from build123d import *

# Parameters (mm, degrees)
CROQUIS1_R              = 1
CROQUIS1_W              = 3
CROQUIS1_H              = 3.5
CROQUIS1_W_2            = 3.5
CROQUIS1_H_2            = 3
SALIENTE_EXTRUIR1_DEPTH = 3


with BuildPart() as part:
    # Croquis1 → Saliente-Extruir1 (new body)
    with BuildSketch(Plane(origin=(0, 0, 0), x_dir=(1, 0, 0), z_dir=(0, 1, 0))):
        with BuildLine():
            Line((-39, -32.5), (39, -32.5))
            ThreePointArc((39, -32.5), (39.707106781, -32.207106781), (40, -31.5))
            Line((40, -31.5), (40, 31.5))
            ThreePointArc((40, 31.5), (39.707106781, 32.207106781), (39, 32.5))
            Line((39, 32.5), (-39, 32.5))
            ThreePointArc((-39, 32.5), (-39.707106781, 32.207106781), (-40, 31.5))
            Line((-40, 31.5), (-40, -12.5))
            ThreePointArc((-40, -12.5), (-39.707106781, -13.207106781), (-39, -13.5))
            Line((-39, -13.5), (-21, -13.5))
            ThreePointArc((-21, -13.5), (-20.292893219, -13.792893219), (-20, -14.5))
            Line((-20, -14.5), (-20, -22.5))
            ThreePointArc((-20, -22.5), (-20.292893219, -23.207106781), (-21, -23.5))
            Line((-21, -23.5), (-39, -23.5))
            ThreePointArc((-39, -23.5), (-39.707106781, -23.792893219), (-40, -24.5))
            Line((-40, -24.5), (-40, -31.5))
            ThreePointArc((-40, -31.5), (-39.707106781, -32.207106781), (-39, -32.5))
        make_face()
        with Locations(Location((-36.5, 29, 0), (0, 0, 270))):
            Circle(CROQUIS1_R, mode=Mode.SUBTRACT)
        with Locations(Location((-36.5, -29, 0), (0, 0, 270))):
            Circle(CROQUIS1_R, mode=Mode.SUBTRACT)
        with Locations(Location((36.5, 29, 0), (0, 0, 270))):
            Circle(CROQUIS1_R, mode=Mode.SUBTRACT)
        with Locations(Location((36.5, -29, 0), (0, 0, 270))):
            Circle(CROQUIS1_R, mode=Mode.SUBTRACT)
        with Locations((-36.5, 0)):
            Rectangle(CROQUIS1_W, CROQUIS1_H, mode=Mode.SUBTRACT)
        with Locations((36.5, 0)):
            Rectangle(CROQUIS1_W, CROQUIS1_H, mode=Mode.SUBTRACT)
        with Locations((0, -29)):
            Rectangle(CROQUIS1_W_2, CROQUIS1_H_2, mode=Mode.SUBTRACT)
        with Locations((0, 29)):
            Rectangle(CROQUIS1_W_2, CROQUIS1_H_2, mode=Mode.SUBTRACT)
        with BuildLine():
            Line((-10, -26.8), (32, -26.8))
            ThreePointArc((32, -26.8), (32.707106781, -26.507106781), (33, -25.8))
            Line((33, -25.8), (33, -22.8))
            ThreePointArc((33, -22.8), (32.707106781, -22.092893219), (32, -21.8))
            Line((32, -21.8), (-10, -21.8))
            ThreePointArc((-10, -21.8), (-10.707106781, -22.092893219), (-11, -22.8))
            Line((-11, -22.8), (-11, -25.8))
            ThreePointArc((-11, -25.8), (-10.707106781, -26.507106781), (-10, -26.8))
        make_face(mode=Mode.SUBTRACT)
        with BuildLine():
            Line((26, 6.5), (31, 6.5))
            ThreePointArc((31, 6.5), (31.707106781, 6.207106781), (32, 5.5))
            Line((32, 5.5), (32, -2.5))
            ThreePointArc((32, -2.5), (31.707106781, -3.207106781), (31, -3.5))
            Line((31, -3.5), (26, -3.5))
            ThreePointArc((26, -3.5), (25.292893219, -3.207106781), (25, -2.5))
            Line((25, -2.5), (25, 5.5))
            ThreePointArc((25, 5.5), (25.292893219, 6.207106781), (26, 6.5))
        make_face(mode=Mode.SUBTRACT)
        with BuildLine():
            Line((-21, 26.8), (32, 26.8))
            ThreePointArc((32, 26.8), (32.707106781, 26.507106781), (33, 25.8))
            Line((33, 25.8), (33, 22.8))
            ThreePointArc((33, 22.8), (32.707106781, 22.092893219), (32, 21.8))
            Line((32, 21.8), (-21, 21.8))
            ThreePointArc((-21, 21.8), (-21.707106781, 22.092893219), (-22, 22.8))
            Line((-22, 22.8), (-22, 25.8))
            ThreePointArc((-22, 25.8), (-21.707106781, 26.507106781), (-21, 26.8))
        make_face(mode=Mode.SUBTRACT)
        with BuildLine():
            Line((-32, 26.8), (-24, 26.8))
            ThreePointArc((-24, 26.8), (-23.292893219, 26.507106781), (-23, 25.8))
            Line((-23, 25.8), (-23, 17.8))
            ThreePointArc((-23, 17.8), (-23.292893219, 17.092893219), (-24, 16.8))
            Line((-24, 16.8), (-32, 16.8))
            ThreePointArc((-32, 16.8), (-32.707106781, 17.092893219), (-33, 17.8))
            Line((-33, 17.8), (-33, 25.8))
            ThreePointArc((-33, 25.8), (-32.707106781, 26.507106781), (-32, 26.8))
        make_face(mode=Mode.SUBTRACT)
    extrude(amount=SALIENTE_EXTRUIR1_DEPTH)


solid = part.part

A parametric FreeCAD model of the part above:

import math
import FreeCAD as App
import Part
import Sketcher
from FreeCAD import Vector
Q = App.Units.Quantity


def add_polygon(sketch, points):
    """Adds a closed chain of lines whose ends are joined by coincident constraints."""
    first, n = sketch.GeometryCount, len(points)
    for a, b in zip(points, points[1:] + points[:1]):
        sketch.addGeometry(Part.LineSegment(App.Vector(*a, 0), App.Vector(*b, 0)), False)
    for i in range(n):
        sketch.addConstraint(Sketcher.Constraint("Coincident", first + i, 2, first + (i + 1) % n, 1))

doc = App.newDocument("Part")
body = doc.addObject("PartDesign::Body", "Body")

# Sketch on XZ plane
sketch1 = doc.addObject("Sketcher::SketchObject", "Sketch")
body.addObject(sketch1)
sketch1.AttachmentSupport = (doc.XZ_Plane, [""])
sketch1.MapMode = "FlatFace"
sketch1.addGeometry(Part.LineSegment(Vector(-39, 32.5, 0), Vector(39, 32.5, 0)), False)  # 0
sketch1.addGeometry(Part.ArcOfCircle(Part.Circle(Vector(39, 31.5, 0), Vector(0, 0, 1), 1), math.radians(0), math.radians(90)), False)  # 1
sketch1.addGeometry(Part.LineSegment(Vector(40, 31.5, 0), Vector(40, -31.5, 0)), False)  # 2
sketch1.addGeometry(Part.ArcOfCircle(Part.Circle(Vector(39, -31.5, 0), Vector(0, 0, 1), 1), math.radians(-90), math.radians(0)), False)  # 3
sketch1.addGeometry(Part.LineSegment(Vector(39, -32.5, 0), Vector(-39, -32.5, 0)), False)  # 4
sketch1.addGeometry(Part.ArcOfCircle(Part.Circle(Vector(-39, -31.5, 0), Vector(0, 0, 1), 1), math.radians(-180), math.radians(-90)), False)  # 5
sketch1.addGeometry(Part.LineSegment(Vector(-40, -31.5, 0), Vector(-40, 12.5, 0)), False)  # 6
sketch1.addGeometry(Part.ArcOfCircle(Part.Circle(Vector(-39, 12.5, 0), Vector(0, 0, 1), 1), math.radians(90), math.radians(180)), False)  # 7
sketch1.addGeometry(Part.LineSegment(Vector(-39, 13.5, 0), Vector(-21, 13.5, 0)), False)  # 8
sketch1.addGeometry(Part.ArcOfCircle(Part.Circle(Vector(-21, 14.5, 0), Vector(0, 0, 1), 1), math.radians(-90), math.radians(0)), False)  # 9
sketch1.addGeometry(Part.LineSegment(Vector(-20, 14.5, 0), Vector(-20, 22.5, 0)), False)  # 10
sketch1.addGeometry(Part.ArcOfCircle(Part.Circle(Vector(-21, 22.5, 0), Vector(0, 0, 1), 1), math.radians(0), math.radians(90)), False)  # 11
sketch1.addGeometry(Part.LineSegment(Vector(-21, 23.5, 0), Vector(-39, 23.5, 0)), False)  # 12
sketch1.addGeometry(Part.ArcOfCircle(Part.Circle(Vector(-39, 24.5, 0), Vector(0, 0, 1), 1), math.radians(-180), math.radians(-90)), False)  # 13
sketch1.addGeometry(Part.LineSegment(Vector(-40, 24.5, 0), Vector(-40, 31.5, 0)), False)  # 14
sketch1.addGeometry(Part.ArcOfCircle(Part.Circle(Vector(-39, 31.5, 0), Vector(0, 0, 1), 1), math.radians(90), math.radians(180)), False)  # 15
sketch1.addGeometry(Part.Circle(Vector(-36.5, 29, 0), Vector(0, 0, 1), 1), False)  # 16
add_polygon(sketch1, [(1.8, 30.5), (-1.8, 30.5), (-1.8, 27.5), (1.8, 27.5)])  # lines 17-20
sketch1.addGeometry(Part.LineSegment(Vector(32, 26.8, 0), Vector(-10, 26.8, 0)), False)  # 21
sketch1.addGeometry(Part.ArcOfCircle(Part.Circle(Vector(-10, 25.8, 0), Vector(0, 0, 1), 1), math.radians(90), math.radians(180)), False)  # 22
sketch1.addGeometry(Part.LineSegment(Vector(-11, 25.8, 0), Vector(-11, 22.8, 0)), False)  # 23
sketch1.addGeometry(Part.ArcOfCircle(Part.Circle(Vector(-10, 22.8, 0), Vector(0, 0, 1), 1), math.radians(-180), math.radians(-90)), False)  # 24
sketch1.addGeometry(Part.LineSegment(Vector(-10, 21.8, 0), Vector(32, 21.8, 0)), False)  # 25
sketch1.addGeometry(Part.ArcOfCircle(Part.Circle(Vector(32, 22.8, 0), Vector(0, 0, 1), 1), math.radians(-90), math.radians(0)), False)  # 26
sketch1.addGeometry(Part.LineSegment(Vector(33, 22.8, 0), Vector(33, 25.8, 0)), False)  # 27
sketch1.addGeometry(Part.ArcOfCircle(Part.Circle(Vector(32, 25.8, 0), Vector(0, 0, 1), 1), math.radians(0), math.radians(90)), False)  # 28
sketch1.addGeometry(Part.Circle(Vector(36.5, 29, 0), Vector(0, 0, 1), 1), False)  # 29
add_polygon(sketch1, [(-35, 1.8), (-38, 1.8), (-38, -1.8), (-35, -1.8)])  # lines 30-33
sketch1.addGeometry(Part.ArcOfCircle(Part.Circle(Vector(-32, -25.8, 0), Vector(0, 0, 1), 1), math.radians(-180), math.radians(-90)), False)  # 34
sketch1.addGeometry(Part.LineSegment(Vector(-32, -26.8, 0), Vector(-24, -26.8, 0)), False)  # 35
sketch1.addGeometry(Part.ArcOfCircle(Part.Circle(Vector(-24, -25.8, 0), Vector(0, 0, 1), 1), math.radians(-90), math.radians(0)), False)  # 36
sketch1.addGeometry(Part.LineSegment(Vector(-23, -25.8, 0), Vector(-23, -17.8, 0)), False)  # 37
sketch1.addGeometry(Part.ArcOfCircle(Part.Circle(Vector(-24, -17.8, 0), Vector(0, 0, 1), 1), math.radians(0), math.radians(90)), False)  # 38
sketch1.addGeometry(Part.LineSegment(Vector(-24, -16.8, 0), Vector(-32, -16.8, 0)), False)  # 39
sketch1.addGeometry(Part.ArcOfCircle(Part.Circle(Vector(-32, -17.8, 0), Vector(0, 0, 1), 1), math.radians(90), math.radians(180)), False)  # 40
sketch1.addGeometry(Part.LineSegment(Vector(-33, -17.8, 0), Vector(-33, -25.8, 0)), False)  # 41
sketch1.addGeometry(Part.Circle(Vector(-36.5, -29, 0), Vector(0, 0, 1), 1), False)  # 42
sketch1.addGeometry(Part.ArcOfCircle(Part.Circle(Vector(26, -5.5, 0), Vector(0, 0, 1), 1), math.radians(-180), math.radians(-90)), False)  # 43
sketch1.addGeometry(Part.LineSegment(Vector(26, -6.5, 0), Vector(31, -6.5, 0)), False)  # 44
sketch1.addGeometry(Part.ArcOfCircle(Part.Circle(Vector(31, -5.5, 0), Vector(0, 0, 1), 1), math.radians(-90), math.radians(0)), False)  # 45
sketch1.addGeometry(Part.LineSegment(Vector(32, -5.5, 0), Vector(32, 2.5, 0)), False)  # 46
sketch1.addGeometry(Part.ArcOfCircle(Part.Circle(Vector(31, 2.5, 0), Vector(0, 0, 1), 1), math.radians(0), math.radians(90)), False)  # 47
sketch1.addGeometry(Part.LineSegment(Vector(31, 3.5, 0), Vector(26, 3.5, 0)), False)  # 48
sketch1.addGeometry(Part.ArcOfCircle(Part.Circle(Vector(26, 2.5, 0), Vector(0, 0, 1), 1), math.radians(90), math.radians(180)), False)  # 49
sketch1.addGeometry(Part.LineSegment(Vector(25, 2.5, 0), Vector(25, -5.5, 0)), False)  # 50
add_polygon(sketch1, [(38, 1.8), (35, 1.8), (35, -1.8), (38, -1.8)])  # lines 51-54
sketch1.addGeometry(Part.ArcOfCircle(Part.Circle(Vector(-21, -25.8, 0), Vector(0, 0, 1), 1), math.radians(-180), math.radians(-90)), False)  # 55
sketch1.addGeometry(Part.LineSegment(Vector(-21, -26.8, 0), Vector(32, -26.8, 0)), False)  # 56
sketch1.addGeometry(Part.ArcOfCircle(Part.Circle(Vector(32, -25.8, 0), Vector(0, 0, 1), 1), math.radians(-90), math.radians(0)), False)  # 57
sketch1.addGeometry(Part.LineSegment(Vector(33, -25.8, 0), Vector(33, -22.8, 0)), False)  # 58
sketch1.addGeometry(Part.ArcOfCircle(Part.Circle(Vector(32, -22.8, 0), Vector(0, 0, 1), 1), math.radians(0), math.radians(90)), False)  # 59
sketch1.addGeometry(Part.LineSegment(Vector(32, -21.8, 0), Vector(-21, -21.8, 0)), False)  # 60
sketch1.addGeometry(Part.ArcOfCircle(Part.Circle(Vector(-21, -22.8, 0), Vector(0, 0, 1), 1), math.radians(90), math.radians(180)), False)  # 61
sketch1.addGeometry(Part.LineSegment(Vector(-22, -22.8, 0), Vector(-22, -25.8, 0)), False)  # 62
add_polygon(sketch1, [(1.8, -27.5), (-1.8, -27.5), (-1.8, -30.5), (1.8, -30.5)])  # lines 63-66
sketch1.addGeometry(Part.Circle(Vector(36.5, -29, 0), Vector(0, 0, 1), 1), False)  # 67
sketch1.addConstraint([
    Sketcher.Constraint("Tangent", 0, 2, 1, 2),
    Sketcher.Constraint("Tangent", 1, 1, 2, 1),
    Sketcher.Constraint("Tangent", 2, 2, 3, 2),
    Sketcher.Constraint("Tangent", 3, 1, 4, 1),
    Sketcher.Constraint("Tangent", 4, 2, 5, 2),
    Sketcher.Constraint("Tangent", 5, 1, 6, 1),
    Sketcher.Constraint("Tangent", 6, 2, 7, 2),
    Sketcher.Constraint("Tangent", 7, 1, 8, 1),
    Sketcher.Constraint("Tangent", 8, 2, 9, 1),
    Sketcher.Constraint("Tangent", 9, 2, 10, 1),
    Sketcher.Constraint("Tangent", 10, 2, 11, 1),
    Sketcher.Constraint("Tangent", 11, 2, 12, 1),
    Sketcher.Constraint("Tangent", 12, 2, 13, 2),
    Sketcher.Constraint("Tangent", 13, 1, 14, 1),
    Sketcher.Constraint("Tangent", 14, 2, 15, 2),
    Sketcher.Constraint("Tangent", 15, 1, 0, 1),
    Sketcher.Constraint("Tangent", 21, 2, 22, 1),
    Sketcher.Constraint("Tangent", 22, 2, 23, 1),
    Sketcher.Constraint("Tangent", 23, 2, 24, 1),
    Sketcher.Constraint("Tangent", 24, 2, 25, 1),
    Sketcher.Constraint("Tangent", 25, 2, 26, 1),
    Sketcher.Constraint("Tangent", 26, 2, 27, 1),
    Sketcher.Constraint("Tangent", 27, 2, 28, 1),
    Sketcher.Constraint("Tangent", 28, 2, 21, 1),
    Sketcher.Constraint("Tangent", 34, 2, 35, 1),
    Sketcher.Constraint("Tangent", 35, 2, 36, 1),
    Sketcher.Constraint("Tangent", 36, 2, 37, 1),
    Sketcher.Constraint("Tangent", 37, 2, 38, 1),
    Sketcher.Constraint("Tangent", 38, 2, 39, 1),
    Sketcher.Constraint("Tangent", 39, 2, 40, 1),
    Sketcher.Constraint("Tangent", 40, 2, 41, 1),
    Sketcher.Constraint("Tangent", 41, 2, 34, 1),
    Sketcher.Constraint("Tangent", 43, 2, 44, 1),
    Sketcher.Constraint("Tangent", 44, 2, 45, 1),
    Sketcher.Constraint("Tangent", 45, 2, 46, 1),
    Sketcher.Constraint("Tangent", 46, 2, 47, 1),
    Sketcher.Constraint("Tangent", 47, 2, 48, 1),
    Sketcher.Constraint("Tangent", 48, 2, 49, 1),
    Sketcher.Constraint("Tangent", 49, 2, 50, 1),
    Sketcher.Constraint("Tangent", 50, 2, 43, 1),
    Sketcher.Constraint("Tangent", 55, 2, 56, 1),
    Sketcher.Constraint("Tangent", 56, 2, 57, 1),
    Sketcher.Constraint("Tangent", 57, 2, 58, 1),
    Sketcher.Constraint("Tangent", 58, 2, 59, 1),
    Sketcher.Constraint("Tangent", 59, 2, 60, 1),
    Sketcher.Constraint("Tangent", 60, 2, 61, 1),
    Sketcher.Constraint("Tangent", 61, 2, 62, 1),
    Sketcher.Constraint("Tangent", 62, 2, 55, 1),
    Sketcher.Constraint("Horizontal", 0),
    Sketcher.Constraint("Vertical", 2),
    Sketcher.Constraint("Horizontal", 4),
    Sketcher.Constraint("Vertical", 6),
    Sketcher.Constraint("Horizontal", 8),
    Sketcher.Constraint("Vertical", 10),
    Sketcher.Constraint("Horizontal", 12),
    Sketcher.Constraint("Vertical", 14),
    Sketcher.Constraint("Horizontal", 17),
    Sketcher.Constraint("Vertical", 18),
    Sketcher.Constraint("Horizontal", 19),
    Sketcher.Constraint("Vertical", 20),
    Sketcher.Constraint("Horizontal", 21),
    Sketcher.Constraint("Vertical", 23),
    Sketcher.Constraint("Horizontal", 25),
    Sketcher.Constraint("Vertical", 27),
    Sketcher.Constraint("Horizontal", 30),
    Sketcher.Constraint("Vertical", 31),
    Sketcher.Constraint("Horizontal", 32),
    Sketcher.Constraint("Vertical", 33),
    Sketcher.Constraint("Horizontal", 35),
    Sketcher.Constraint("Vertical", 37),
    Sketcher.Constraint("Horizontal", 39),
    Sketcher.Constraint("Vertical", 41),
    Sketcher.Constraint("Horizontal", 44),
    Sketcher.Constraint("Vertical", 46),
    Sketcher.Constraint("Horizontal", 48),
    Sketcher.Constraint("Vertical", 50),
    Sketcher.Constraint("Horizontal", 51),
    Sketcher.Constraint("Vertical", 52),
    Sketcher.Constraint("Horizontal", 53),
    Sketcher.Constraint("Vertical", 54),
    Sketcher.Constraint("Horizontal", 56),
    Sketcher.Constraint("Vertical", 58),
    Sketcher.Constraint("Horizontal", 60),
    Sketcher.Constraint("Vertical", 62),
    Sketcher.Constraint("Horizontal", 63),
    Sketcher.Constraint("Vertical", 64),
    Sketcher.Constraint("Horizontal", 65),
    Sketcher.Constraint("Vertical", 66),
    Sketcher.Constraint("Equal", 1, 3),
    Sketcher.Constraint("Equal", 3, 5),
    Sketcher.Constraint("Equal", 5, 7),
    Sketcher.Constraint("Equal", 7, 9),
    Sketcher.Constraint("Equal", 9, 11),
    Sketcher.Constraint("Equal", 11, 13),
    Sketcher.Constraint("Equal", 13, 15),
    Sketcher.Constraint("Equal", 15, 16),
    Sketcher.Constraint("Equal", 16, 22),
    Sketcher.Constraint("Equal", 22, 24),
    Sketcher.Constraint("Equal", 24, 26),
    Sketcher.Constraint("Equal", 26, 28),
    Sketcher.Constraint("Equal", 28, 29),
    Sketcher.Constraint("Equal", 29, 34),
    Sketcher.Constraint("Equal", 34, 36),
    Sketcher.Constraint("Equal", 36, 38),
    Sketcher.Constraint("Equal", 38, 40),
    Sketcher.Constraint("Equal", 40, 42),
    Sketcher.Constraint("Equal", 42, 43),
    Sketcher.Constraint("Equal", 43, 45),
    Sketcher.Constraint("Equal", 45, 47),
    Sketcher.Constraint("Equal", 47, 49),
    Sketcher.Constraint("Equal", 49, 55),
    Sketcher.Constraint("Equal", 55, 57),
    Sketcher.Constraint("Equal", 57, 59),
    Sketcher.Constraint("Equal", 59, 61),
    Sketcher.Constraint("Equal", 61, 67),
    Sketcher.Constraint("Symmetric", 1, 3, 5, 3, -1, 1),
    Sketcher.Constraint("Symmetric", 28, 3, 34, 3, -1, 1),
    Sketcher.Constraint("Symmetric", 29, 3, 42, 3, -1, 1),
    Sketcher.Constraint("Symmetric", 16, 3, 67, 3, -1, 1),
    Sketcher.Constraint("Symmetric", 32, 2, 51, 2, -1, 1),
    Sketcher.Constraint("Symmetric", 30, 2, 53, 2, -1, 1),
    Sketcher.Constraint("Symmetric", 19, 2, 63, 2, -1, 1),
    Sketcher.Constraint("Symmetric", 17, 2, 65, 2, -1, 1),
    Sketcher.Constraint("Symmetric", 16, 3, 29, 3, -2),
    Sketcher.Constraint("Symmetric", 34, 3, 57, 3, -2),
    Sketcher.Constraint("Horizontal", 33, 2, 51, 2),
    Sketcher.Constraint("Vertical", 7, 3, 13, 3),
    Sketcher.Constraint("Vertical", 11, 3, 55, 3),
    Sketcher.Constraint("Vertical", 28, 2, 45, 2),
    Sketcher.Constraint("Vertical", 18, 2, 63, 2),
    Sketcher.Constraint("Equal", 39, 10),
    Sketcher.Constraint("Equal", 53, 18),
    Sketcher.Constraint("Equal", 20, 23),
    Sketcher.Constraint("Equal", 65, 31),
    Sketcher.Constraint("Equal", 10, 37),
    Sketcher.Constraint("Equal", 41, 46),
    Sketcher.Constraint("Equal", 27, 58),
    Sketcher.Constraint("Diameter", 16, Q("2 mm")),
    Sketcher.Constraint("DistanceX", 0, 1, 0, 2, Q("78 mm")),
    Sketcher.Constraint("DistanceX", 8, 1, 8, 2, Q("18 mm")),
    Sketcher.Constraint("DistanceX", 21, 2, 21, 1, Q("42 mm")),
    Sketcher.Constraint("DistanceX", 30, 2, 30, 1, Q("3 mm")),
    Sketcher.Constraint("DistanceX", 35, 1, 35, 2, Q("8 mm")),
    Sketcher.Constraint("DistanceX", 44, 1, 44, 2, Q("5 mm")),
    Sketcher.Constraint("DistanceX", 56, 1, 56, 2, Q("53 mm")),
    Sketcher.Constraint("DistanceY", 2, 2, 2, 1, Q("63 mm")),
    Sketcher.Constraint("DistanceY", 6, 1, 6, 2, Q("44 mm")),
    Sketcher.Constraint("DistanceX", 17, 2, 17, 1, Q("3.5 mm")),
    Sketcher.Constraint("DistanceY", -1, 1, 16, 3, Q("29 mm")),
    Sketcher.Constraint("DistanceX", 30, 2, -1, 1, Q("38 mm")),
    Sketcher.Constraint("DistanceX", 16, 3, -1, 1, Q("36.5 mm")),
    Sketcher.Constraint("DistanceY", -1, 1, 22, 3, Q("25.8 mm")),
    Sketcher.Constraint("DistanceY", 43, 3, -1, 1, Q("5.5 mm")),
    Sketcher.Constraint("DistanceY", -1, 1, 17, 2, Q("30.5 mm")),
])
pad1 = doc.addObject("PartDesign::Pad", "Pad")
body.addObject(pad1)
pad1.Profile = sketch1
pad1.Length = 3
pad1.Reversed = True

doc.recompute()
